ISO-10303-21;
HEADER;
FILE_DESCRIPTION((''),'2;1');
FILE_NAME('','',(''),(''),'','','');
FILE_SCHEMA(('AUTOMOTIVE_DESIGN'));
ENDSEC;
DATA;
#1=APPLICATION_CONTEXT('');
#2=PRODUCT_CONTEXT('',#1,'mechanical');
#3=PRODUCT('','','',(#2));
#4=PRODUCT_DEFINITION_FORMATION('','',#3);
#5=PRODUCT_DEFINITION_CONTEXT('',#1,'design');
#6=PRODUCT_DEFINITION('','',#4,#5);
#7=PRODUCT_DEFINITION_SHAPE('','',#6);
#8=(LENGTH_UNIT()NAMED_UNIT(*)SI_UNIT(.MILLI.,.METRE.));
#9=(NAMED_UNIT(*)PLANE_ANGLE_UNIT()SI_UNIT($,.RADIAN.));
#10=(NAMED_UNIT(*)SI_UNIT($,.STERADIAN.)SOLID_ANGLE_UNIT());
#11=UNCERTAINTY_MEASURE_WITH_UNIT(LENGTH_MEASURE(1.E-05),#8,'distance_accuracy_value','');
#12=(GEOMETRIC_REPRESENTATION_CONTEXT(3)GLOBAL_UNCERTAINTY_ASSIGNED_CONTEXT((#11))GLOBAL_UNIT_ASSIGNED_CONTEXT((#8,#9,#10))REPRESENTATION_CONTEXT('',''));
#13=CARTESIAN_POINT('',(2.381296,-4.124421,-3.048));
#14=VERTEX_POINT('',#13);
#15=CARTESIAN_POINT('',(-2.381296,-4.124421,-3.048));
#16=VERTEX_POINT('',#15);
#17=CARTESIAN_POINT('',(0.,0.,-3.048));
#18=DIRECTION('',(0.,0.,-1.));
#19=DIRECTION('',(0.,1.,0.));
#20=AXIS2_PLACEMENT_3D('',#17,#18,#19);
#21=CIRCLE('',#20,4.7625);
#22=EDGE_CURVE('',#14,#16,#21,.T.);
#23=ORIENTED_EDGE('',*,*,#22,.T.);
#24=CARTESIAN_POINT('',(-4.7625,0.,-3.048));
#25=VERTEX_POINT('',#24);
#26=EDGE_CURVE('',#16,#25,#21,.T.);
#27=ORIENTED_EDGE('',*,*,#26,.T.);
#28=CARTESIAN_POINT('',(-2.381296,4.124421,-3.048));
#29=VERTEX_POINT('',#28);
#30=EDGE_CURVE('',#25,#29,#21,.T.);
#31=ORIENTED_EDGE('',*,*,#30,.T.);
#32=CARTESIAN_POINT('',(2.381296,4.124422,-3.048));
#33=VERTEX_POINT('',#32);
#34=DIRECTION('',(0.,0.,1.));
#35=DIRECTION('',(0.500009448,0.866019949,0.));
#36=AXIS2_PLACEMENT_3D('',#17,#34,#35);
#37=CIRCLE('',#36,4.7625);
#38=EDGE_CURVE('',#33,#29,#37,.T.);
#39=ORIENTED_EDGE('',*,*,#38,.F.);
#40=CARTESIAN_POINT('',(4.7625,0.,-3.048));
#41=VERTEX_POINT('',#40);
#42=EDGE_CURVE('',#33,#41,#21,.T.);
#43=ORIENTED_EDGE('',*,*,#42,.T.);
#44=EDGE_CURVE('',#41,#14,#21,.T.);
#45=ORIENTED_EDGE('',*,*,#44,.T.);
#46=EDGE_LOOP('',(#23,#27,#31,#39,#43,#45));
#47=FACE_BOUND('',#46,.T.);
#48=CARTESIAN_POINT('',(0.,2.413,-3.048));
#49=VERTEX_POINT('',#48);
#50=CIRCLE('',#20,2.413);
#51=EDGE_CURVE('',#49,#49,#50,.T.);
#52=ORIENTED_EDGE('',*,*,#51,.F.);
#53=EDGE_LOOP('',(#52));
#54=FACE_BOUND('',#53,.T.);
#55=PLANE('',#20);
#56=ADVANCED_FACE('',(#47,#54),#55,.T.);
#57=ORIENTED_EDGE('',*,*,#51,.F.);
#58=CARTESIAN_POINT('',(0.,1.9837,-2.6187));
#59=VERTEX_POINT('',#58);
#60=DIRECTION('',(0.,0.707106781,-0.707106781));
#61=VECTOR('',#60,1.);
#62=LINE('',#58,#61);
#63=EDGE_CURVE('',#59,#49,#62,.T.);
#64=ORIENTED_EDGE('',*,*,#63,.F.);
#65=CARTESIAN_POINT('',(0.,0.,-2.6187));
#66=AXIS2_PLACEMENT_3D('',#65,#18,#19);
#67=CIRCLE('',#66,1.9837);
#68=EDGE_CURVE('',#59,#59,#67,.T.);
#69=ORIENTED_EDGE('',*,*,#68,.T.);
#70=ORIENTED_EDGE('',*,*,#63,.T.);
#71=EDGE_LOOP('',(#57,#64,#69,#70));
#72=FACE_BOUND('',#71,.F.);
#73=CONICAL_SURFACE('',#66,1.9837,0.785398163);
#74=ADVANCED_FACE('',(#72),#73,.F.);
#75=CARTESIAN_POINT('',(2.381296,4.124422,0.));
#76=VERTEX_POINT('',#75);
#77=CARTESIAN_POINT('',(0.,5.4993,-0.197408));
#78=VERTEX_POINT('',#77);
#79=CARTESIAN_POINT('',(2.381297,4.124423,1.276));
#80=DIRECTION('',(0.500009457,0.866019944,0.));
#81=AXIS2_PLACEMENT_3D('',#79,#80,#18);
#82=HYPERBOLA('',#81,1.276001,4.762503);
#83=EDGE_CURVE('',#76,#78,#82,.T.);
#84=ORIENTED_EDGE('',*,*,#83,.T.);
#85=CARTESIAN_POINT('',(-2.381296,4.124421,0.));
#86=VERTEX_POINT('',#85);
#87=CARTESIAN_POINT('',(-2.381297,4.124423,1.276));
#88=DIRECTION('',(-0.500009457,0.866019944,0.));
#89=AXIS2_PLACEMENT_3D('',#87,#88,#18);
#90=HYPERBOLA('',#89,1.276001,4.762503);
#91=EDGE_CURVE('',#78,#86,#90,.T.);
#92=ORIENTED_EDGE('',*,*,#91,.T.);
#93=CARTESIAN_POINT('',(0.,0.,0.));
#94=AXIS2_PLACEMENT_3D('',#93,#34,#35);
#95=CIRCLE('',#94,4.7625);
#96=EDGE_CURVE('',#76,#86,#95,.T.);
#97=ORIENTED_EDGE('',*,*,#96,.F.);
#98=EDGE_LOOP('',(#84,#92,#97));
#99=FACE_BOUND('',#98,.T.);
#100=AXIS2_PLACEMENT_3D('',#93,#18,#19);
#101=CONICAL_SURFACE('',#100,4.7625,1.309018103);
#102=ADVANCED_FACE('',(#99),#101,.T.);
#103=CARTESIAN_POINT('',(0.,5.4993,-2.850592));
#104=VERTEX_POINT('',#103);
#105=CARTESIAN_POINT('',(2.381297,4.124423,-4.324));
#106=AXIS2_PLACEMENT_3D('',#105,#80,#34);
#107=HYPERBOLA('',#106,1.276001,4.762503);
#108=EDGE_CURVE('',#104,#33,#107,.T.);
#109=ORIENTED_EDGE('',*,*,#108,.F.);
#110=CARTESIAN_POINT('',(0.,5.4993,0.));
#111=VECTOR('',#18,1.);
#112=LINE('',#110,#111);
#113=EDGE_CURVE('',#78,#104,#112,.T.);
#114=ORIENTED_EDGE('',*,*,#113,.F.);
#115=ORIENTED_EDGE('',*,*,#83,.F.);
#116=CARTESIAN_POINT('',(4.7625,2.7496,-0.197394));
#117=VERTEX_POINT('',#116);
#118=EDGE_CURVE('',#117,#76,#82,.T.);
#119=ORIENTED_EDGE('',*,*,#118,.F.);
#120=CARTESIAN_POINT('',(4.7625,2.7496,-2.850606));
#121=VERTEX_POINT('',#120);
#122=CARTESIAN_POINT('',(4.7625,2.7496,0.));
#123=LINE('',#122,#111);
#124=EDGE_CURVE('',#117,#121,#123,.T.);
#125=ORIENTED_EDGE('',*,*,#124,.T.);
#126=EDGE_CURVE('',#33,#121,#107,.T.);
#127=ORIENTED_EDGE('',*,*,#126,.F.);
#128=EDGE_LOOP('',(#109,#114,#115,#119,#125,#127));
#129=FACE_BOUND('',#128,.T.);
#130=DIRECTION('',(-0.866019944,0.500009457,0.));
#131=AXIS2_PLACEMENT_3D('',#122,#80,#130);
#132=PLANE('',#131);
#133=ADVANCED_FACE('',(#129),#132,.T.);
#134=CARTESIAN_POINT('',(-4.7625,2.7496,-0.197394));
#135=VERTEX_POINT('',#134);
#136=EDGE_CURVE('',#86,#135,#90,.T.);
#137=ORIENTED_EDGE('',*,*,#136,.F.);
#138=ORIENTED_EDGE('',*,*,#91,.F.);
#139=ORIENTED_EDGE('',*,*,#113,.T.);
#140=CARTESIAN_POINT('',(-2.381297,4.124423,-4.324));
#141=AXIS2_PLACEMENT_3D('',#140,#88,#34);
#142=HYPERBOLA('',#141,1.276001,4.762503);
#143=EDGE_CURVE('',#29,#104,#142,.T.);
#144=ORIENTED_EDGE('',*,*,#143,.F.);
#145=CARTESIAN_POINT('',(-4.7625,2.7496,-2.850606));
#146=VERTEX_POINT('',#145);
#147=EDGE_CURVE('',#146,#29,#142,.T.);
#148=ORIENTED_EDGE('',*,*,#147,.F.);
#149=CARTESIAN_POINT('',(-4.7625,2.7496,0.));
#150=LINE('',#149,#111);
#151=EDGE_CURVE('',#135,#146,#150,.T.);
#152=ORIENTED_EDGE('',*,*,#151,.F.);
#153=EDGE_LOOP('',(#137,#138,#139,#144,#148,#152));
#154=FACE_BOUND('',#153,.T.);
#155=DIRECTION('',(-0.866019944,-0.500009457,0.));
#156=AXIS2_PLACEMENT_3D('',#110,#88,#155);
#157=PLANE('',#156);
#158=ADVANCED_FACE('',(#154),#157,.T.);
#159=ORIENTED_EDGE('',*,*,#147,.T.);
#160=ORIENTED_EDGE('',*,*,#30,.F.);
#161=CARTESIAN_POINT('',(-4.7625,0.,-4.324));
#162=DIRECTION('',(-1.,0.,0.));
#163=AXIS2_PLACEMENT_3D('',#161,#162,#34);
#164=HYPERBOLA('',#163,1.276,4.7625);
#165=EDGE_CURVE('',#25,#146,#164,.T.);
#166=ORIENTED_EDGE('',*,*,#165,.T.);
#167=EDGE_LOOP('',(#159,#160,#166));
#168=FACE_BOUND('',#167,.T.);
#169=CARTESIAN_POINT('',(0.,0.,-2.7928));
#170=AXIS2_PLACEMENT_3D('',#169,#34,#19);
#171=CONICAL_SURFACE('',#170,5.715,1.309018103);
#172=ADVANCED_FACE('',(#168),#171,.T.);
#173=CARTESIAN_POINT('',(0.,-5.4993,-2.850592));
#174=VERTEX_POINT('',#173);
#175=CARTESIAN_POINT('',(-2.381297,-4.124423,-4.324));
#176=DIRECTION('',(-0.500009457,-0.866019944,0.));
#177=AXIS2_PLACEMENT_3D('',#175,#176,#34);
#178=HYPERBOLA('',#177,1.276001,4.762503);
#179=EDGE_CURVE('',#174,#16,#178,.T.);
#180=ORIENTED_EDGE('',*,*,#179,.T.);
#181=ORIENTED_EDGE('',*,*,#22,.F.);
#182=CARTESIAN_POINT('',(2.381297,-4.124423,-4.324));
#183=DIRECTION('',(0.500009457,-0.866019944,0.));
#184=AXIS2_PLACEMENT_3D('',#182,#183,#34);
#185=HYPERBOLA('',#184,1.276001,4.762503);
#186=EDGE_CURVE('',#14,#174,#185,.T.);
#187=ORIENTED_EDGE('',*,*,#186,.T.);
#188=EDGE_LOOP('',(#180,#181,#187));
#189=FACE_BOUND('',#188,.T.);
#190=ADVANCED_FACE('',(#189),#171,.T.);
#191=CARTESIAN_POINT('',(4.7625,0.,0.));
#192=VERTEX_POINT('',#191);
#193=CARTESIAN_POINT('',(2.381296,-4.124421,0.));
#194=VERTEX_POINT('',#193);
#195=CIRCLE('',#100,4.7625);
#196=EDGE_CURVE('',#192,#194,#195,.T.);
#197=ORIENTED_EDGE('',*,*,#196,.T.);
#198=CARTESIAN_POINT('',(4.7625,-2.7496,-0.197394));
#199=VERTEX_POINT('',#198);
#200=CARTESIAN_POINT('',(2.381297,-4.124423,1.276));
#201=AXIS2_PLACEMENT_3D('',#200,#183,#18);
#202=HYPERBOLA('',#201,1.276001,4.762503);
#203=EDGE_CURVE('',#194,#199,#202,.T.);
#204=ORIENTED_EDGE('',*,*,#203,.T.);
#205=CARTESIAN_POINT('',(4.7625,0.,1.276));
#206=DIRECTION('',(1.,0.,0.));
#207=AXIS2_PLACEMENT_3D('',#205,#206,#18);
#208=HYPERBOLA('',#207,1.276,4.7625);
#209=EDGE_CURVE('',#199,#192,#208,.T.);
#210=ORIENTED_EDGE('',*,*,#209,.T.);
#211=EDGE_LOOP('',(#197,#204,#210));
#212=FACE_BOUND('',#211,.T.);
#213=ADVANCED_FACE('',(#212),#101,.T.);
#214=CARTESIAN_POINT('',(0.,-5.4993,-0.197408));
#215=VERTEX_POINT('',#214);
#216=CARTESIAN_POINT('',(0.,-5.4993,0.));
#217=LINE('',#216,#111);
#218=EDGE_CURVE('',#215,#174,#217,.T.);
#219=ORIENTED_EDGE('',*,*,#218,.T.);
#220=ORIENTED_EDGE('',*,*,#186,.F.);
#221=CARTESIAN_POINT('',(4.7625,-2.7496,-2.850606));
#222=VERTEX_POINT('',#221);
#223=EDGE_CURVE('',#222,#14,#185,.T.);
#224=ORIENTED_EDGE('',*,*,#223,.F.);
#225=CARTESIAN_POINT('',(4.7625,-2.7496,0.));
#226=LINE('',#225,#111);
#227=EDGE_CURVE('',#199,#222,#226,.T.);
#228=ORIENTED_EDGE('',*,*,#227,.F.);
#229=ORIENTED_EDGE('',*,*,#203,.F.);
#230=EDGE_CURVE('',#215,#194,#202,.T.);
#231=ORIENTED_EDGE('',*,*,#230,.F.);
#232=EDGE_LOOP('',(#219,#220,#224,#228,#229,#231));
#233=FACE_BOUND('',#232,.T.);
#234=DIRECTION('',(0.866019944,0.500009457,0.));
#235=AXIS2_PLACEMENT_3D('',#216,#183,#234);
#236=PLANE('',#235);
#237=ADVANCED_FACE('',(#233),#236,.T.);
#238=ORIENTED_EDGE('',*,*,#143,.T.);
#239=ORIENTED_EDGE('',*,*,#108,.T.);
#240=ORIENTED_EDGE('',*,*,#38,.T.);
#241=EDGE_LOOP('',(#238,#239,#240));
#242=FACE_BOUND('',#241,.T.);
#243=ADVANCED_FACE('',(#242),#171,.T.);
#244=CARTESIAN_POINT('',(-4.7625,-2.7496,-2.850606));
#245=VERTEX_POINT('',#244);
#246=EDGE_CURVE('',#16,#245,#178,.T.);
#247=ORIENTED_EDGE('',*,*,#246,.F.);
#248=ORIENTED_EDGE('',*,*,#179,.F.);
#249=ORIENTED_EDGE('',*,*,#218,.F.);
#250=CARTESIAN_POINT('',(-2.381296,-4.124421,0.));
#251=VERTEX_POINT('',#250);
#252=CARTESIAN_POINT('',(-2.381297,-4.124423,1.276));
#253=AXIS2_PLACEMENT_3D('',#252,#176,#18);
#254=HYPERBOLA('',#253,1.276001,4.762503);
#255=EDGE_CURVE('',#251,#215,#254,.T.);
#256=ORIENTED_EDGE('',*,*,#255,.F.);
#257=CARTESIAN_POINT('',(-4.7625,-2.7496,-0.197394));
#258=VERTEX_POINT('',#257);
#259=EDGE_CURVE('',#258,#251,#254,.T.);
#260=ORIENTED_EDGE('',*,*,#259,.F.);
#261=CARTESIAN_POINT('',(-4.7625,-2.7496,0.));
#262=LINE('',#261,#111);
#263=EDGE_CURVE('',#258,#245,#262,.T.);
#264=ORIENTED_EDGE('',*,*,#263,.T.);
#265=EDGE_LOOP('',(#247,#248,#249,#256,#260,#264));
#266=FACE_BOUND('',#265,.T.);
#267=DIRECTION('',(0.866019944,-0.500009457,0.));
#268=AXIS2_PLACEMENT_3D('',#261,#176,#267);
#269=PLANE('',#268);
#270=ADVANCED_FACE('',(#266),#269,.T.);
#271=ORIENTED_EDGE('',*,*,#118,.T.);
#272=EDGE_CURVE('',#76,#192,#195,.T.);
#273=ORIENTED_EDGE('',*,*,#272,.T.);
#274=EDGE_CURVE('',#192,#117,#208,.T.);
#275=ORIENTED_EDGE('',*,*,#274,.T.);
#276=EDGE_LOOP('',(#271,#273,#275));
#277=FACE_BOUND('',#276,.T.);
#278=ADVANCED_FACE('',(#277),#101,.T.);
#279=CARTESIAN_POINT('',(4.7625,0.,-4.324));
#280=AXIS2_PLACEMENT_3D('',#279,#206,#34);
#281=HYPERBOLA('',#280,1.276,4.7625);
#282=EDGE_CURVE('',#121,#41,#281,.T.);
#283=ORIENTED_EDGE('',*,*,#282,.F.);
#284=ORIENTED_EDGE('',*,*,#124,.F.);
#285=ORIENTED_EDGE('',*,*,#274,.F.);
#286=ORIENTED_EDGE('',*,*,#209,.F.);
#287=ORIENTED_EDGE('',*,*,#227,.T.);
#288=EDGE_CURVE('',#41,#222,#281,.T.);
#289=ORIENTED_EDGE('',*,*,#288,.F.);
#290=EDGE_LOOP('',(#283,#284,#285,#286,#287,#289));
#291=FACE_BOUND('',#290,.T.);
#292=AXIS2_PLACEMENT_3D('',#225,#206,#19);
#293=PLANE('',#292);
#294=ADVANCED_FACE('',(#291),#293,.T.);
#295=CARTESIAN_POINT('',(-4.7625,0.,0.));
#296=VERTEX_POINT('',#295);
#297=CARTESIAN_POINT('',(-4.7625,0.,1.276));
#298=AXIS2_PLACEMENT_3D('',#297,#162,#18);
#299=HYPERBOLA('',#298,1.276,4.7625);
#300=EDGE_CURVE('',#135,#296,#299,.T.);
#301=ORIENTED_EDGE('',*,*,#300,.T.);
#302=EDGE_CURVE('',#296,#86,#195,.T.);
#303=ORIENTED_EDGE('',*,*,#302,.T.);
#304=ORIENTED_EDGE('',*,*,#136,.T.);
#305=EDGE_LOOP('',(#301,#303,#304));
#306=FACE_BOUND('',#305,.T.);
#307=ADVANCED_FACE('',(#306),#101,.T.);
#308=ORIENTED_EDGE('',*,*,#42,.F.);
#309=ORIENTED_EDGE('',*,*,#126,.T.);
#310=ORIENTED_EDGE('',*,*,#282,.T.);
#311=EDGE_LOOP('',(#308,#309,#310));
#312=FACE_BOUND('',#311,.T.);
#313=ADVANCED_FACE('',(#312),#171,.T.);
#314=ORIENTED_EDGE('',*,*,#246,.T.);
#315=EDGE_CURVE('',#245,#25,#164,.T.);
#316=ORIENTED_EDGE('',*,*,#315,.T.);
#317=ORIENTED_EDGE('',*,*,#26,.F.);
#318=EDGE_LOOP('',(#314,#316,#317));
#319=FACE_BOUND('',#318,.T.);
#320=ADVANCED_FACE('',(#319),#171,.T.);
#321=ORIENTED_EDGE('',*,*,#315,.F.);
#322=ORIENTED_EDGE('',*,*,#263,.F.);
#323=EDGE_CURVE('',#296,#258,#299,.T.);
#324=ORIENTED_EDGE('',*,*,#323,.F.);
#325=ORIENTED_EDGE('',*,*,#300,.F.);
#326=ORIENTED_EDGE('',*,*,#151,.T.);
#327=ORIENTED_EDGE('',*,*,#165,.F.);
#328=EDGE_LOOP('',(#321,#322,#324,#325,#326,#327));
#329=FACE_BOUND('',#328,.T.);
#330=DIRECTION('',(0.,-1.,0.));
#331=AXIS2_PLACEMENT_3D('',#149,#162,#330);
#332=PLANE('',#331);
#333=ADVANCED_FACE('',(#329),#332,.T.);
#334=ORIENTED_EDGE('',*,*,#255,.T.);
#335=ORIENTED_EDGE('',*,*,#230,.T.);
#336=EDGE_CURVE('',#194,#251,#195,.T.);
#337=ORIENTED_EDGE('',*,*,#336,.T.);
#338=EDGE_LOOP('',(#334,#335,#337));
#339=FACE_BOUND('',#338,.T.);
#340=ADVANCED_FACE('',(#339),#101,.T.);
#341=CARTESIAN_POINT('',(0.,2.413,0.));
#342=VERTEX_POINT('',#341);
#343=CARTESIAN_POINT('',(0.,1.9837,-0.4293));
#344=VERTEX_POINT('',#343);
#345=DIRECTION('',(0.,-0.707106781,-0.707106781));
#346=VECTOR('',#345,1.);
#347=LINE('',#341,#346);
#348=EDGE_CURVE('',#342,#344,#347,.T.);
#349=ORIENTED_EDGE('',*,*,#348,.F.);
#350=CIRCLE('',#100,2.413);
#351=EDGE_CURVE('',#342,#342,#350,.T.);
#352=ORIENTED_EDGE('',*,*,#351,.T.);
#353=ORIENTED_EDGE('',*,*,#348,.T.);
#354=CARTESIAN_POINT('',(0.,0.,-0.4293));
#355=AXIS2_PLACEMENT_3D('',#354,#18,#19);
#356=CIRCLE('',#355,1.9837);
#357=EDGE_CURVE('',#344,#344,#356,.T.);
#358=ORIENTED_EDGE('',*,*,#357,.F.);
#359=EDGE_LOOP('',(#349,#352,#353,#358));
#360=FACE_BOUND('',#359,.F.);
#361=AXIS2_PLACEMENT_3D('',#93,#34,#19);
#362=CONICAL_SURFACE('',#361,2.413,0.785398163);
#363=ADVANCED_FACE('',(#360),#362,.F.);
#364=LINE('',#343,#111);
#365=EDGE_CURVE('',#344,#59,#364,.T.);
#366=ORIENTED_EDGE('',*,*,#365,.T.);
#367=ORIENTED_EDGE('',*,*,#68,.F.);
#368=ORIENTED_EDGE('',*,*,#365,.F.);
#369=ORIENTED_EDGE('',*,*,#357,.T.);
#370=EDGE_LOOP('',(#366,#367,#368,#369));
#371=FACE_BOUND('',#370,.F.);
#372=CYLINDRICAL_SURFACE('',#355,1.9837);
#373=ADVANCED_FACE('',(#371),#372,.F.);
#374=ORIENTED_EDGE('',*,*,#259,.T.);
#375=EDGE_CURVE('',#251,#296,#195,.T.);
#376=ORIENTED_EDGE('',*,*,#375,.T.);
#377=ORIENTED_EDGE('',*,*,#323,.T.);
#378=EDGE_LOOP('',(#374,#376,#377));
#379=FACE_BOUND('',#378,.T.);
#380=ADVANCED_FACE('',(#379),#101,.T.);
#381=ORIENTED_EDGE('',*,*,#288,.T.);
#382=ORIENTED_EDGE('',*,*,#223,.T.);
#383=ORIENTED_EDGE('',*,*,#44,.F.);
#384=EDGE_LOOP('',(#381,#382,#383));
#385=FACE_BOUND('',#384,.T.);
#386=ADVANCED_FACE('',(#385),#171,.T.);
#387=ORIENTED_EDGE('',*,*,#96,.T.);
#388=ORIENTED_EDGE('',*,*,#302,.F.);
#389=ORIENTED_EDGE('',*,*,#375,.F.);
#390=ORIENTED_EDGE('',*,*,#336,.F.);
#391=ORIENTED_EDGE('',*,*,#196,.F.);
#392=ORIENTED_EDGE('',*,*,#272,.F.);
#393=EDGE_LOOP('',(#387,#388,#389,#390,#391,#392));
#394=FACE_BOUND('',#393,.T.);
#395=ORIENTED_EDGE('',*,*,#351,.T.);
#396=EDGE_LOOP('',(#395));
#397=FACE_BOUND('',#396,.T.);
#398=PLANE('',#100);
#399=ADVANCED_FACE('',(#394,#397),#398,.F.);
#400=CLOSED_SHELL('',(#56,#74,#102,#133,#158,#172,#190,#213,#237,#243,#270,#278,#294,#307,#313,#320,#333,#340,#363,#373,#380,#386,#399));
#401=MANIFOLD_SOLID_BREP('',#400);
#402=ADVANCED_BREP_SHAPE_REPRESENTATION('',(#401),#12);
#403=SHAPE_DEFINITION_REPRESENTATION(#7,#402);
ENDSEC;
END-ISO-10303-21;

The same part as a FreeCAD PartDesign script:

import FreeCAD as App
import Part
import Sketcher
Q = App.Units.Quantity


def add_polygon(sketch, points):
    """Adds a closed chain of lines whose ends are joined by coincident constraints."""
    first, n = sketch.GeometryCount, len(points)
    for a, b in zip(points, points[1:] + points[:1]):
        sketch.addGeometry(Part.LineSegment(App.Vector(*a, 0), App.Vector(*b, 0)), False)
    for i in range(n):
        sketch.addConstraint(Sketcher.Constraint("Coincident", first + i, 2, first + (i + 1) % n, 1))

doc = App.newDocument("Part")
params = doc.addObject("Spreadsheet::Sheet", "Params")
for row, (alias, value) in enumerate([
    ("sketch1_height", "0.12 in"),
    ("sketch1_width", "0.1875 in"),
    ("revolution_angle", "360 deg"),
    ("sketch2_width", "0.75 in"),
    ("pocket1_length", "0.12 in"),
    ("sketch3_height", "0.12 in"),
    ("sketch3_width", "0.095 in"),
    ("groove_angle", "360 deg"),
], start=1):
    params.set(f"A{row}", alias)
    params.set(f"B{row}", "=" + value)
    params.setAlias(f"B{row}", alias)

body = doc.addObject("PartDesign::Body", "Body")

# Sketch on YZ plane
sketch1 = body.newObject("Sketcher::SketchObject", "Sketch")
sketch1.AttachmentSupport = (doc.getObject("YZ_Plane"), [""])
sketch1.MapMode = "FlatFace"
add_polygon(sketch1, [(0, 0), (0, -3), (4.8, -3), (5.7, -2.8), (5.7, -0.3), (4.8, 0)])  # lines 0-5
sketch1.addConstraint([
    Sketcher.Constraint("Vertical", 0),
    Sketcher.Constraint("Horizontal", 1),
    Sketcher.Constraint("Vertical", 3),
    Sketcher.Constraint("Horizontal", 5),
    Sketcher.Constraint("Coincident", 5, 2, -1, 1),
    Sketcher.Constraint("Vertical", 1, 2, 4, 2),
    Sketcher.Constraint("Equal", 2, 4),
    Sketcher.Constraint("DistanceY", 0, 2, 0, 1, Q("0.12 in")),
    Sketcher.Constraint("DistanceX", 1, 1, 1, 2, Q("0.1875 in")),
    Sketcher.Constraint("DistanceY", 3, 1, 3, 2, Q("0.0999 in")),
    Sketcher.Constraint("DistanceX", -1, 1, 2, 2, Q("0.225 in")),
])
sketch1.setExpression("Constraints[13]", "Params.sketch1_height")
sketch1.setExpression("Constraints[14]", "Params.sketch1_width")
revolution = body.newObject("PartDesign::Revolution", "Revolution")
revolution.Profile = sketch1
revolution.ReferenceAxis = (sketch1, ["V_Axis"])
revolution.setExpression("Angle", "Params.revolution_angle")

# Sketch on XY plane
sketch2 = body.newObject("Sketcher::SketchObject", "Sketch001")
sketch2.AttachmentSupport = (doc.getObject("XY_Plane"), [""])
sketch2.MapMode = "FlatFace"
add_polygon(sketch2, [(-10, 10), (-10, -10), (10, -10), (10, 10)])  # lines 0-3
add_polygon(sketch2, [(0, -5), (-5, -3), (-5, 3), (0, 5), (5, 3), (5, -3)])  # lines 4-9
sketch2.addConstraint([
    Sketcher.Constraint("Vertical", 0),
    Sketcher.Constraint("Horizontal", 1),
    Sketcher.Constraint("Vertical", 2),
    Sketcher.Constraint("Horizontal", 3),
    Sketcher.Constraint("Vertical", 5),
    Sketcher.Constraint("Vertical", 8),
    Sketcher.Constraint("Symmetric", 0, 2, 2, 2, -1, 1),
    Sketcher.Constraint("Symmetric", 4, 2, 7, 2, -1, 1),
    Sketcher.Constraint("Symmetric", 6, 2, 9, 2, -1, 1),
    Sketcher.Constraint("PointOnObject", 6, 2, -2),
    Sketcher.Constraint("Parallel", 6, 9),
    Sketcher.Constraint("Horizontal", 5, 2, 7, 2),
    Sketcher.Constraint("Equal", 3, 0),
    Sketcher.Constraint("Angle", 4, Q("149.9994 deg")),
    Sketcher.Constraint("DistanceX", 1, 1, 1, 2, Q("0.75 in")),
    Sketcher.Constraint("DistanceY", 5, 1, 5, 2, Q("0.2165 in")),
    Sketcher.Constraint("DistanceX", 4, 2, -1, 1, Q("0.1875 in")),
])
sketch2.setExpression("Constraints[24]", "Params.sketch2_width")
pocket1 = body.newObject("PartDesign::Pocket", "Pocket")
pocket1.Profile = sketch2
pocket1.setExpression("Length", "Params.pocket1_length")

# Sketch on YZ plane
sketch3 = body.newObject("Sketcher::SketchObject", "Sketch002")
sketch3.AttachmentSupport = (doc.getObject("YZ_Plane"), [""])
sketch3.MapMode = "FlatFace"
add_polygon(sketch3, [(0, 0), (0, -3), (2.4, -3), (2, -2.6), (2, -0.4), (2.4, 0)])  # lines 0-5
sketch3.addConstraint([
    Sketcher.Constraint("Vertical", 0),
    Sketcher.Constraint("Horizontal", 1),
    Sketcher.Constraint("Vertical", 3),
    Sketcher.Constraint("Horizontal", 5),
    Sketcher.Constraint("Coincident", 5, 2, -1, 1),
    Sketcher.Constraint("Perpendicular", 2, 4),
    Sketcher.Constraint("Vertical", 1, 2, 4, 2),
    Sketcher.Constraint("Equal", 2, 4),
    Sketcher.Constraint("DistanceY", 0, 2, 0, 1, Q("0.12 in")),
    Sketcher.Constraint("DistanceX", 1, 1, 1, 2, Q("0.095 in")),
    Sketcher.Constraint("DistanceY", 3, 1, 3, 2, Q("0.0862 in")),
])
sketch3.setExpression("Constraints[14]", "Params.sketch3_height")
sketch3.setExpression("Constraints[15]", "Params.sketch3_width")
groove = body.newObject("PartDesign::Groove", "Groove")
groove.Profile = sketch3
groove.ReferenceAxis = (sketch3, ["V_Axis"])
groove.setExpression("Angle", "Params.groove_angle")

doc.recompute()
